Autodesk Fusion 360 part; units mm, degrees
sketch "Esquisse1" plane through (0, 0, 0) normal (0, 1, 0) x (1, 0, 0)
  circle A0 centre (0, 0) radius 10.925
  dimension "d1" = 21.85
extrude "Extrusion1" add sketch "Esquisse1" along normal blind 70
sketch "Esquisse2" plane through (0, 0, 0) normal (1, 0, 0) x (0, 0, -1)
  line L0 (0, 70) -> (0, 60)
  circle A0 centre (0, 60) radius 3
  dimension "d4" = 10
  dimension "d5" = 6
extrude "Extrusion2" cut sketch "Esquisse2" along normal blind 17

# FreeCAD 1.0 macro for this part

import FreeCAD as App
import Part
import Sketcher
Q = App.Units.Quantity

doc = App.newDocument("Part")
body = doc.addObject("PartDesign::Body", "Body")

sketch1 = body.newObject("Sketcher::SketchObject", "Sketch")
sketch1.AttachmentSupport = (doc.getObject("XZ_Plane"), [""])
sketch1.MapMode = "FlatFace"
sketch1.addGeometry(Part.Circle(App.Vector(0, 0, 0), App.Vector(0, 0, 1), 11), False)
sketch1.addConstraint([
    Sketcher.Constraint("Coincident", 0, 3, -1, 1),
    Sketcher.Constraint("Diameter", 0, Q("21.85 mm")),
])
pad1 = body.newObject("PartDesign::Pad", "Pad")
pad1.Profile = sketch1
pad1.Length = 70
pad1.Reversed = True

sketch2 = body.newObject("Sketcher::SketchObject", "Sketch001")
sketch2.AttachmentSupport = (doc.getObject("YZ_Plane"), [""])
sketch2.MapMode = "FlatFace"
sketch2.addGeometry(Part.Circle(App.Vector(60, 0, 0), App.Vector(0, 0, 1), 3), False)
sketch2.addConstraint([
    Sketcher.Constraint("PointOnObject", 0, 3, -1),
    Sketcher.Constraint("Diameter", 0, Q("6 mm")),
    Sketcher.Constraint("DistanceX", -1, 1, 0, 3, Q("60 mm")),
])
pocket1 = body.newObject("PartDesign::Pocket", "Pocket")
pocket1.Profile = sketch2
pocket1.Length = 17
pocket1.Reversed = True

doc.recompute()
